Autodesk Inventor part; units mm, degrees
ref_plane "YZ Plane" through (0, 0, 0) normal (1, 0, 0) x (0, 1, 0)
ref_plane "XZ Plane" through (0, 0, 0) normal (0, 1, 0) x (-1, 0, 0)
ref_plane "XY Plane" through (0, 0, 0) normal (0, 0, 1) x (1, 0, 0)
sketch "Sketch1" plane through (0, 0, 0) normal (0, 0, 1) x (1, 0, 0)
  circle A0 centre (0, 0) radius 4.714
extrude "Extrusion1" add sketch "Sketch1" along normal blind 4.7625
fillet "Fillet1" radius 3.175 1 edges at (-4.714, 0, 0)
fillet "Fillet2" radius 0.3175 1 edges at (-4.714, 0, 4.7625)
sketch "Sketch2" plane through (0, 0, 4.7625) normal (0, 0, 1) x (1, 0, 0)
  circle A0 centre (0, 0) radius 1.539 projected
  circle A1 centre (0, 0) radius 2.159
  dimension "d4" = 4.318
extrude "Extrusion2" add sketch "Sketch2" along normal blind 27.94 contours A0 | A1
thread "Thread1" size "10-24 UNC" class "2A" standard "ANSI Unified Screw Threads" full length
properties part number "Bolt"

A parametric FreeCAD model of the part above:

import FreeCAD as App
import Part
import Sketcher
from FreeCAD import Vector
Q = App.Units.Quantity


def edges_at(feature, points):
    """Names of the edges that pass closest to the given points."""
    edges = feature.Shape.Edges
    near = lambda p: min(range(len(edges)), key=lambda i: edges[i].distToShape(Part.Vertex(*p))[0])
    return sorted({f"Edge{near(p) + 1}" for p in points})

doc = App.newDocument("Part")
body = doc.addObject("PartDesign::Body", "Body")

# Sketch on XY plane
sketch1 = body.newObject("Sketcher::SketchObject", "Sketch")
sketch1.AttachmentSupport = (doc.getObject("XY_Plane"), [""])
sketch1.MapMode = "FlatFace"
sketch1.addGeometry(Part.Circle(Vector(0, 0, 0), Vector(0, 0, 1), 4.714), False)
sketch1.addConstraint(Sketcher.Constraint("Coincident", 0, 3, -1, 1))
sketch1.addConstraint(Sketcher.Constraint("Diameter", 0, 9.428))
pad1 = body.newObject("PartDesign::Pad", "Pad")
pad1.Profile = sketch1
pad1.Length = Q("0.1875 in")
doc.recompute()

fillet = body.newObject("PartDesign::Fillet", "Fillet")
fillet.Base = (pad1, edges_at(pad1, [(-4.714, 0, 0)]))
fillet.Radius = Q("0.125 in")
doc.recompute()

fillet2 = body.newObject("PartDesign::Fillet", "Fillet001")
fillet2.Base = (fillet, edges_at(fillet, [(-4.714, 0, 4.763)]))
fillet2.Radius = Q("0.0125 in")

# Sketch on XY plane
sketch2 = body.newObject("Sketcher::SketchObject", "Sketch001")
sketch2.AttachmentSupport = (doc.getObject("XY_Plane"), [""])
sketch2.MapMode = "FlatFace"
sketch2.AttachmentOffset = App.Placement(Vector(0, 0, 0.1875 * 25.4), App.Rotation())
sketch2.addGeometry(Part.Circle(Vector(0, 0, 0), Vector(0, 0, 1), 2.159), False)
sketch2.addConstraint(Sketcher.Constraint("Coincident", 0, 3, -1, 1))
sketch2.addConstraint(Sketcher.Constraint("Diameter", 0, Q("0.17 in")))
pad2 = body.newObject("PartDesign::Pad", "Pad001")
pad2.Profile = sketch2
pad2.Length = Q("1.1 in")

doc.recompute()
